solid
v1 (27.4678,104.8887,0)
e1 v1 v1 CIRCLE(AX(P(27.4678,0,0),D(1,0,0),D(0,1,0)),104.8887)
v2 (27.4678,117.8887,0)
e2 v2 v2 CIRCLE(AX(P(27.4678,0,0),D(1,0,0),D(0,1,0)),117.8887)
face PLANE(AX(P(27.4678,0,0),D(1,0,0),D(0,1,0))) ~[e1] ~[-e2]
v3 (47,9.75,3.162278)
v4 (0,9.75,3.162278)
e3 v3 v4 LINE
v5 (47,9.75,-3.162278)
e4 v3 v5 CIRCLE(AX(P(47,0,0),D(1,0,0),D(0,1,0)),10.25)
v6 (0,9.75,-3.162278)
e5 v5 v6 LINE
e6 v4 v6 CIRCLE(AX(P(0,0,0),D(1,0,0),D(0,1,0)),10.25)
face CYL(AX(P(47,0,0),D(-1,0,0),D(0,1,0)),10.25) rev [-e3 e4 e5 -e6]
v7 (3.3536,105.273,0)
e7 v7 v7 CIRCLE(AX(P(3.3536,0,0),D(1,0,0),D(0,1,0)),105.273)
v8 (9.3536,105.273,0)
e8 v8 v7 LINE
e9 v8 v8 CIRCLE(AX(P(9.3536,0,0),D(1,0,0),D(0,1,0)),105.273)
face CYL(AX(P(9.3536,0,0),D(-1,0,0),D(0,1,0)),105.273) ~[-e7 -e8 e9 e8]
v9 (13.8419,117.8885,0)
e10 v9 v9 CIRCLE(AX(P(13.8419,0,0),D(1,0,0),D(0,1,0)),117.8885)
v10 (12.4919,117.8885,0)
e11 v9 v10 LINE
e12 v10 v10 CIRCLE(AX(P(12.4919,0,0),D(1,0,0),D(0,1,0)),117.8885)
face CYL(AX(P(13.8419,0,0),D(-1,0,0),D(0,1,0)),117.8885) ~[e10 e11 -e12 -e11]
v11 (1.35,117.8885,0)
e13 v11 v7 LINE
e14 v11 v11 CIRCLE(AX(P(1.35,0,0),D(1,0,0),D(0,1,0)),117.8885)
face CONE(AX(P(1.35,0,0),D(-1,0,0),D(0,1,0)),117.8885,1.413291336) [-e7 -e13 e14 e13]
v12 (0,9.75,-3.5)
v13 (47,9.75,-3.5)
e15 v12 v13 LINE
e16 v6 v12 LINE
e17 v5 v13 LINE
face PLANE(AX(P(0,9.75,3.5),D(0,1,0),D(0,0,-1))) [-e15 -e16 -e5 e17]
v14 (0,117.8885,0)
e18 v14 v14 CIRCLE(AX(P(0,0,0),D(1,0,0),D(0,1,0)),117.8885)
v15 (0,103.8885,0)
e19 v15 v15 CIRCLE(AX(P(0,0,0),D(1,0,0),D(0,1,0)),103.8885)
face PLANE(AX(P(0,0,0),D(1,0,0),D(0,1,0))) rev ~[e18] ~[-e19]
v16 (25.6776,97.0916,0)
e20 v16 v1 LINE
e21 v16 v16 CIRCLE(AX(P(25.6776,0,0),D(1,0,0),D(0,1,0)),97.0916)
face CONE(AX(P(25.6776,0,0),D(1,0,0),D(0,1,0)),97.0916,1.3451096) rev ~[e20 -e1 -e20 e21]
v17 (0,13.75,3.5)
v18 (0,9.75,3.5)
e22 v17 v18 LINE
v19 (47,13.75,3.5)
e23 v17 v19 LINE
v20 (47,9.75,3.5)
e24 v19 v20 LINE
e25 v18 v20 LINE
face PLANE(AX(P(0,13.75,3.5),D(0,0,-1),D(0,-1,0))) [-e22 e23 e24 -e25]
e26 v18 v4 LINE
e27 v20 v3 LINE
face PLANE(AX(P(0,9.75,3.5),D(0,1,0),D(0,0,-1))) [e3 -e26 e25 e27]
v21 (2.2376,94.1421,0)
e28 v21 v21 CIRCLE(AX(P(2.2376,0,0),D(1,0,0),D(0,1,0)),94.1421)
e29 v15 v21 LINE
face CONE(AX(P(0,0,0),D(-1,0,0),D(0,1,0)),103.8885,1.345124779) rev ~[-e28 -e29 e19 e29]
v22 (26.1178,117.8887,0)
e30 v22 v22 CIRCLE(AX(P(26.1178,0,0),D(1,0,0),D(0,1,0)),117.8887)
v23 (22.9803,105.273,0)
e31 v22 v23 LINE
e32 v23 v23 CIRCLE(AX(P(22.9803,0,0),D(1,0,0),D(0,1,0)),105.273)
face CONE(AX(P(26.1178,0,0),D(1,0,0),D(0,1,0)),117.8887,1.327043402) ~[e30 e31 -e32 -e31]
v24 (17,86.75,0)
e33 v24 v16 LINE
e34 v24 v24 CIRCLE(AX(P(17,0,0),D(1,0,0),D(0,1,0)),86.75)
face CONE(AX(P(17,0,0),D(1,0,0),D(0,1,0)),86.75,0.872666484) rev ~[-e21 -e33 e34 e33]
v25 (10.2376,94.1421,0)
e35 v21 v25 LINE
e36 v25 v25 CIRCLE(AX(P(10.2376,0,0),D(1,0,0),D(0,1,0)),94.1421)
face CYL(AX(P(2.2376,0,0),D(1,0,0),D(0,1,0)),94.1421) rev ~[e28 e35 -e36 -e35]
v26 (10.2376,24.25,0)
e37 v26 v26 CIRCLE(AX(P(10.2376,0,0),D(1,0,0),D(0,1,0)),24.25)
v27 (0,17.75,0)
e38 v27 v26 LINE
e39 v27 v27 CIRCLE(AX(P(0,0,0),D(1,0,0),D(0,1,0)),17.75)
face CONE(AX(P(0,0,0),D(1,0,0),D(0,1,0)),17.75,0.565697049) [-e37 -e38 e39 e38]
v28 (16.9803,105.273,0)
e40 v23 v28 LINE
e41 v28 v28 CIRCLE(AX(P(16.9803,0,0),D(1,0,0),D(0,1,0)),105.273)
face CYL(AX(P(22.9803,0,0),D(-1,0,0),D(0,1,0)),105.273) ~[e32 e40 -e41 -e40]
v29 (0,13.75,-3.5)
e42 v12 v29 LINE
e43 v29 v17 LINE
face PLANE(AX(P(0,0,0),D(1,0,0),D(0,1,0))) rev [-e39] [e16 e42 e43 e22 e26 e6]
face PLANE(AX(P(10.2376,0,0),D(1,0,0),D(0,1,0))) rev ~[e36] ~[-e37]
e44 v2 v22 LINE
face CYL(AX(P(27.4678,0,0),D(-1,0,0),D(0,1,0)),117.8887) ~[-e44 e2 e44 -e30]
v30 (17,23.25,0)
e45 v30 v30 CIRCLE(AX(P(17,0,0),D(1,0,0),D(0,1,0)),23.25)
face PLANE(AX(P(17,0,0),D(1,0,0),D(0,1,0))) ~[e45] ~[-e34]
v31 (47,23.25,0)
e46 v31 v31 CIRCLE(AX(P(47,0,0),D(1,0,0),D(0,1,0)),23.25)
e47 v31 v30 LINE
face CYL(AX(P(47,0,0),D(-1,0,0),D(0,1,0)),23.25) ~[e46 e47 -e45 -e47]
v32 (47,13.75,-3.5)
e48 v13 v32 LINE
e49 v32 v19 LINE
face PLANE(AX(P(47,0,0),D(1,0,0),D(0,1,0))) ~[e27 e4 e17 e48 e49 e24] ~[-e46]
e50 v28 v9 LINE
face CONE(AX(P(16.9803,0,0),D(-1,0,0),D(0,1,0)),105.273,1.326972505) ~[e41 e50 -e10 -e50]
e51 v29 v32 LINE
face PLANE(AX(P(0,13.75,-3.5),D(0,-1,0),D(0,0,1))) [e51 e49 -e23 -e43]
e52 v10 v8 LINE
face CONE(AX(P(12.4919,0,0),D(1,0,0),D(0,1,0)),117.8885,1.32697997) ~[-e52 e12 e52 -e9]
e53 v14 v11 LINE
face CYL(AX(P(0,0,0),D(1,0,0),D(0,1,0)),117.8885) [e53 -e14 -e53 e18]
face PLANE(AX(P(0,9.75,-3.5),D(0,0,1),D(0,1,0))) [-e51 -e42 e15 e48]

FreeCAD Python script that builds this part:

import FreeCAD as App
import Part
import Sketcher
from FreeCAD import Vector
Q = App.Units.Quantity


def add_polygon(sketch, points):
    """Adds a closed chain of lines whose ends are joined by coincident constraints."""
    first, n = sketch.GeometryCount, len(points)
    for a, b in zip(points, points[1:] + points[:1]):
        sketch.addGeometry(Part.LineSegment(App.Vector(*a, 0), App.Vector(*b, 0)), False)
    for i in range(n):
        sketch.addConstraint(Sketcher.Constraint("Coincident", first + i, 2, first + (i + 1) % n, 1))

doc = App.newDocument("Part")
body = doc.addObject("PartDesign::Body", "Body")

# Sketch on XY plane
sketch1 = doc.addObject("Sketcher::SketchObject", "Sketch")
body.addObject(sketch1)
sketch1.AttachmentSupport = (doc.XY_Plane, [""])
sketch1.MapMode = "FlatFace"
add_polygon(sketch1, [(0, 10.2), (47, 10.2), (47, 23.2), (17, 23.2), (17, 86.8), (25.7, 97.1), (27.5, 104.9), (27.5, 117.9), (26.1, 117.9), (23, 105.3), (17, 105.3), (13.8, 117.9), (12.5, 117.9), (9.4, 105.3), (3.4, 105.3), (1.4, 117.9), (0, 117.9), (0, 103.9), (2.2, 94.1), (10.2, 94.1), (10.2, 24.2), (0, 17.8)])  # lines 0-21
sketch1.addConstraint([
    Sketcher.Constraint("Horizontal", 0),
    Sketcher.Constraint("Vertical", 1),
    Sketcher.Constraint("Horizontal", 2),
    Sketcher.Constraint("Vertical", 3),
    Sketcher.Constraint("Vertical", 6),
    Sketcher.Constraint("Horizontal", 7),
    Sketcher.Constraint("Horizontal", 9),
    Sketcher.Constraint("Horizontal", 11),
    Sketcher.Constraint("Horizontal", 13),
    Sketcher.Constraint("Horizontal", 15),
    Sketcher.Constraint("Vertical", 16),
    Sketcher.Constraint("Horizontal", 18),
    Sketcher.Constraint("Vertical", 19),
    Sketcher.Constraint("Vertical", 21),
    Sketcher.Constraint("PointOnObject", 15, 2, -2),
    Sketcher.Constraint("PointOnObject", 20, 2, -2),
    Sketcher.Constraint("Parallel", 8, 12),
    Sketcher.Constraint("Horizontal", 9, 2, 12, 2),
    Sketcher.Constraint("Horizontal", 11, 2, 14, 2),
    Sketcher.Constraint("Equal", 7, 11),
    Sketcher.Constraint("Equal", 9, 13),
    Sketcher.Constraint("Equal", 11, 15),
    Sketcher.Constraint("Equal", 1, 6),
    Sketcher.Constraint("Equal", 8, 10),
    Sketcher.Constraint("Equal", 10, 12),
    Sketcher.Constraint("DistanceX", 0, 1, 0, 2, 47.0),
    Sketcher.Constraint("DistanceX", 2, 2, 2, 1, 30.0),
    Sketcher.Constraint("DistanceX", 9, 2, 9, 1, 6.0),
    Sketcher.Constraint("DistanceX", 18, 1, 18, 2, 8.0),
    Sketcher.Constraint("DistanceY", 1, 1, 1, 2, 13.0),
    Sketcher.Constraint("DistanceY", 16, 2, 16, 1, 14.0),
    Sketcher.Constraint("Distance", 5, 8.0),
    Sketcher.Constraint("Distance", 8, 13.0),
    Sketcher.Constraint("Distance", 17, 10.0),
    Sketcher.Constraint("DistanceY", 3, 1, 3, 2, 63.5),
    Sketcher.Constraint("DistanceY", 21, 2, 21, 1, 7.5),
    Sketcher.Constraint("DistanceY", 0, 2, 19, 2, 14.0),
    Sketcher.Constraint("Distance", 4, 13.5),
    Sketcher.Constraint("DistanceX", 7, 2, 7, 1, 1.35),
    Sketcher.Constraint("Angle", 10, Q("103.97 deg")),
    Sketcher.Constraint("DistanceY", -1, 1, 0, 2, 10.25),
    Sketcher.Constraint("Angle", 4, Q("50 deg")),
    Sketcher.Constraint("Angle", 5, Q("77.069 deg")),
    Sketcher.Constraint("Angle", 17, Q("-77.07 deg")),
])
revolution = doc.addObject("PartDesign::Revolution", "Revolution")
body.addObject(revolution)
revolution.Profile = sketch1
revolution.ReferenceAxis = (sketch1, ["H_Axis"])
revolution.Angle = 360

# Sketch on YZ plane
sketch2 = doc.addObject("Sketcher::SketchObject", "Sketch001")
body.addObject(sketch2)
sketch2.AttachmentSupport = (doc.YZ_Plane, [""])
sketch2.MapMode = "FlatFace"
add_polygon(sketch2, [(13.8, 3.5), (13.8, -3.5), (9.8, -3.5), (9.8, 3.5)])  # lines 0-3
sketch2.addConstraint([
    Sketcher.Constraint("Vertical", 0),
    Sketcher.Constraint("Horizontal", 1),
    Sketcher.Constraint("Vertical", 2),
    Sketcher.Constraint("Horizontal", 3),
    Sketcher.Constraint("DistanceX", 1, 2, 1, 1, 4.0),
    Sketcher.Constraint("DistanceY", 0, 2, 0, 1, 7.0),
    Sketcher.Constraint("DistanceY", 0, 2, -1, 1, 3.5),
    Sketcher.Constraint("DistanceX", -1, 1, 0, 2, 13.75),
])
pocket1 = doc.addObject("PartDesign::Pocket", "Pocket")
body.addObject(pocket1)
pocket1.Profile = sketch2
pocket1.Length = 50
pocket1.Reversed = True

doc.recompute()
